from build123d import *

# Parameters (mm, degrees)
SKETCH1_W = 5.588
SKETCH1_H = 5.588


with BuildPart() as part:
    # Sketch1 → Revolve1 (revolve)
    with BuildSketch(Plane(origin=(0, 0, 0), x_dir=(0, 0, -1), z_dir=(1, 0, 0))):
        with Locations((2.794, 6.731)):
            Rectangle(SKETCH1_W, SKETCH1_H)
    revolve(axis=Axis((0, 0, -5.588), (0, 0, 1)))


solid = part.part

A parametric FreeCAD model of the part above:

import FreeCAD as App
import Part
import Sketcher
Q = App.Units.Quantity


def add_polygon(sketch, points):
    """Adds a closed chain of lines whose ends are joined by coincident constraints."""
    first, n = sketch.GeometryCount, len(points)
    for a, b in zip(points, points[1:] + points[:1]):
        sketch.addGeometry(Part.LineSegment(App.Vector(*a, 0), App.Vector(*b, 0)), False)
    for i in range(n):
        sketch.addConstraint(Sketcher.Constraint("Coincident", first + i, 2, first + (i + 1) % n, 1))

doc = App.newDocument("Part")
body = doc.addObject("PartDesign::Body", "Body")

# Sketch on YZ plane
sketch1 = body.newObject("Sketcher::SketchObject", "Sketch")
sketch1.AttachmentSupport = (doc.getObject("YZ_Plane"), [""])
sketch1.MapMode = "FlatFace"
add_polygon(sketch1, [(10, 0), (4, 0), (4, -6), (10, -6)])  # lines 0-3
sketch1.addConstraint([
    Sketcher.Constraint("Horizontal", 0),
    Sketcher.Constraint("Vertical", 1),
    Sketcher.Constraint("Horizontal", 2),
    Sketcher.Constraint("Vertical", 3),
    Sketcher.Constraint("PointOnObject", 0, 2, -1),
    Sketcher.Constraint("Equal", 2, 1),
    Sketcher.Constraint("DistanceX", 0, 2, 0, 1, Q("0.22 in")),
    Sketcher.Constraint("DistanceX", -1, 1, 0, 2, Q("0.155 in")),
])
revolution = body.newObject("PartDesign::Revolution", "Revolution")
revolution.Profile = sketch1
revolution.ReferenceAxis = (sketch1, ["V_Axis"])
revolution.Angle = 360

doc.recompute()
